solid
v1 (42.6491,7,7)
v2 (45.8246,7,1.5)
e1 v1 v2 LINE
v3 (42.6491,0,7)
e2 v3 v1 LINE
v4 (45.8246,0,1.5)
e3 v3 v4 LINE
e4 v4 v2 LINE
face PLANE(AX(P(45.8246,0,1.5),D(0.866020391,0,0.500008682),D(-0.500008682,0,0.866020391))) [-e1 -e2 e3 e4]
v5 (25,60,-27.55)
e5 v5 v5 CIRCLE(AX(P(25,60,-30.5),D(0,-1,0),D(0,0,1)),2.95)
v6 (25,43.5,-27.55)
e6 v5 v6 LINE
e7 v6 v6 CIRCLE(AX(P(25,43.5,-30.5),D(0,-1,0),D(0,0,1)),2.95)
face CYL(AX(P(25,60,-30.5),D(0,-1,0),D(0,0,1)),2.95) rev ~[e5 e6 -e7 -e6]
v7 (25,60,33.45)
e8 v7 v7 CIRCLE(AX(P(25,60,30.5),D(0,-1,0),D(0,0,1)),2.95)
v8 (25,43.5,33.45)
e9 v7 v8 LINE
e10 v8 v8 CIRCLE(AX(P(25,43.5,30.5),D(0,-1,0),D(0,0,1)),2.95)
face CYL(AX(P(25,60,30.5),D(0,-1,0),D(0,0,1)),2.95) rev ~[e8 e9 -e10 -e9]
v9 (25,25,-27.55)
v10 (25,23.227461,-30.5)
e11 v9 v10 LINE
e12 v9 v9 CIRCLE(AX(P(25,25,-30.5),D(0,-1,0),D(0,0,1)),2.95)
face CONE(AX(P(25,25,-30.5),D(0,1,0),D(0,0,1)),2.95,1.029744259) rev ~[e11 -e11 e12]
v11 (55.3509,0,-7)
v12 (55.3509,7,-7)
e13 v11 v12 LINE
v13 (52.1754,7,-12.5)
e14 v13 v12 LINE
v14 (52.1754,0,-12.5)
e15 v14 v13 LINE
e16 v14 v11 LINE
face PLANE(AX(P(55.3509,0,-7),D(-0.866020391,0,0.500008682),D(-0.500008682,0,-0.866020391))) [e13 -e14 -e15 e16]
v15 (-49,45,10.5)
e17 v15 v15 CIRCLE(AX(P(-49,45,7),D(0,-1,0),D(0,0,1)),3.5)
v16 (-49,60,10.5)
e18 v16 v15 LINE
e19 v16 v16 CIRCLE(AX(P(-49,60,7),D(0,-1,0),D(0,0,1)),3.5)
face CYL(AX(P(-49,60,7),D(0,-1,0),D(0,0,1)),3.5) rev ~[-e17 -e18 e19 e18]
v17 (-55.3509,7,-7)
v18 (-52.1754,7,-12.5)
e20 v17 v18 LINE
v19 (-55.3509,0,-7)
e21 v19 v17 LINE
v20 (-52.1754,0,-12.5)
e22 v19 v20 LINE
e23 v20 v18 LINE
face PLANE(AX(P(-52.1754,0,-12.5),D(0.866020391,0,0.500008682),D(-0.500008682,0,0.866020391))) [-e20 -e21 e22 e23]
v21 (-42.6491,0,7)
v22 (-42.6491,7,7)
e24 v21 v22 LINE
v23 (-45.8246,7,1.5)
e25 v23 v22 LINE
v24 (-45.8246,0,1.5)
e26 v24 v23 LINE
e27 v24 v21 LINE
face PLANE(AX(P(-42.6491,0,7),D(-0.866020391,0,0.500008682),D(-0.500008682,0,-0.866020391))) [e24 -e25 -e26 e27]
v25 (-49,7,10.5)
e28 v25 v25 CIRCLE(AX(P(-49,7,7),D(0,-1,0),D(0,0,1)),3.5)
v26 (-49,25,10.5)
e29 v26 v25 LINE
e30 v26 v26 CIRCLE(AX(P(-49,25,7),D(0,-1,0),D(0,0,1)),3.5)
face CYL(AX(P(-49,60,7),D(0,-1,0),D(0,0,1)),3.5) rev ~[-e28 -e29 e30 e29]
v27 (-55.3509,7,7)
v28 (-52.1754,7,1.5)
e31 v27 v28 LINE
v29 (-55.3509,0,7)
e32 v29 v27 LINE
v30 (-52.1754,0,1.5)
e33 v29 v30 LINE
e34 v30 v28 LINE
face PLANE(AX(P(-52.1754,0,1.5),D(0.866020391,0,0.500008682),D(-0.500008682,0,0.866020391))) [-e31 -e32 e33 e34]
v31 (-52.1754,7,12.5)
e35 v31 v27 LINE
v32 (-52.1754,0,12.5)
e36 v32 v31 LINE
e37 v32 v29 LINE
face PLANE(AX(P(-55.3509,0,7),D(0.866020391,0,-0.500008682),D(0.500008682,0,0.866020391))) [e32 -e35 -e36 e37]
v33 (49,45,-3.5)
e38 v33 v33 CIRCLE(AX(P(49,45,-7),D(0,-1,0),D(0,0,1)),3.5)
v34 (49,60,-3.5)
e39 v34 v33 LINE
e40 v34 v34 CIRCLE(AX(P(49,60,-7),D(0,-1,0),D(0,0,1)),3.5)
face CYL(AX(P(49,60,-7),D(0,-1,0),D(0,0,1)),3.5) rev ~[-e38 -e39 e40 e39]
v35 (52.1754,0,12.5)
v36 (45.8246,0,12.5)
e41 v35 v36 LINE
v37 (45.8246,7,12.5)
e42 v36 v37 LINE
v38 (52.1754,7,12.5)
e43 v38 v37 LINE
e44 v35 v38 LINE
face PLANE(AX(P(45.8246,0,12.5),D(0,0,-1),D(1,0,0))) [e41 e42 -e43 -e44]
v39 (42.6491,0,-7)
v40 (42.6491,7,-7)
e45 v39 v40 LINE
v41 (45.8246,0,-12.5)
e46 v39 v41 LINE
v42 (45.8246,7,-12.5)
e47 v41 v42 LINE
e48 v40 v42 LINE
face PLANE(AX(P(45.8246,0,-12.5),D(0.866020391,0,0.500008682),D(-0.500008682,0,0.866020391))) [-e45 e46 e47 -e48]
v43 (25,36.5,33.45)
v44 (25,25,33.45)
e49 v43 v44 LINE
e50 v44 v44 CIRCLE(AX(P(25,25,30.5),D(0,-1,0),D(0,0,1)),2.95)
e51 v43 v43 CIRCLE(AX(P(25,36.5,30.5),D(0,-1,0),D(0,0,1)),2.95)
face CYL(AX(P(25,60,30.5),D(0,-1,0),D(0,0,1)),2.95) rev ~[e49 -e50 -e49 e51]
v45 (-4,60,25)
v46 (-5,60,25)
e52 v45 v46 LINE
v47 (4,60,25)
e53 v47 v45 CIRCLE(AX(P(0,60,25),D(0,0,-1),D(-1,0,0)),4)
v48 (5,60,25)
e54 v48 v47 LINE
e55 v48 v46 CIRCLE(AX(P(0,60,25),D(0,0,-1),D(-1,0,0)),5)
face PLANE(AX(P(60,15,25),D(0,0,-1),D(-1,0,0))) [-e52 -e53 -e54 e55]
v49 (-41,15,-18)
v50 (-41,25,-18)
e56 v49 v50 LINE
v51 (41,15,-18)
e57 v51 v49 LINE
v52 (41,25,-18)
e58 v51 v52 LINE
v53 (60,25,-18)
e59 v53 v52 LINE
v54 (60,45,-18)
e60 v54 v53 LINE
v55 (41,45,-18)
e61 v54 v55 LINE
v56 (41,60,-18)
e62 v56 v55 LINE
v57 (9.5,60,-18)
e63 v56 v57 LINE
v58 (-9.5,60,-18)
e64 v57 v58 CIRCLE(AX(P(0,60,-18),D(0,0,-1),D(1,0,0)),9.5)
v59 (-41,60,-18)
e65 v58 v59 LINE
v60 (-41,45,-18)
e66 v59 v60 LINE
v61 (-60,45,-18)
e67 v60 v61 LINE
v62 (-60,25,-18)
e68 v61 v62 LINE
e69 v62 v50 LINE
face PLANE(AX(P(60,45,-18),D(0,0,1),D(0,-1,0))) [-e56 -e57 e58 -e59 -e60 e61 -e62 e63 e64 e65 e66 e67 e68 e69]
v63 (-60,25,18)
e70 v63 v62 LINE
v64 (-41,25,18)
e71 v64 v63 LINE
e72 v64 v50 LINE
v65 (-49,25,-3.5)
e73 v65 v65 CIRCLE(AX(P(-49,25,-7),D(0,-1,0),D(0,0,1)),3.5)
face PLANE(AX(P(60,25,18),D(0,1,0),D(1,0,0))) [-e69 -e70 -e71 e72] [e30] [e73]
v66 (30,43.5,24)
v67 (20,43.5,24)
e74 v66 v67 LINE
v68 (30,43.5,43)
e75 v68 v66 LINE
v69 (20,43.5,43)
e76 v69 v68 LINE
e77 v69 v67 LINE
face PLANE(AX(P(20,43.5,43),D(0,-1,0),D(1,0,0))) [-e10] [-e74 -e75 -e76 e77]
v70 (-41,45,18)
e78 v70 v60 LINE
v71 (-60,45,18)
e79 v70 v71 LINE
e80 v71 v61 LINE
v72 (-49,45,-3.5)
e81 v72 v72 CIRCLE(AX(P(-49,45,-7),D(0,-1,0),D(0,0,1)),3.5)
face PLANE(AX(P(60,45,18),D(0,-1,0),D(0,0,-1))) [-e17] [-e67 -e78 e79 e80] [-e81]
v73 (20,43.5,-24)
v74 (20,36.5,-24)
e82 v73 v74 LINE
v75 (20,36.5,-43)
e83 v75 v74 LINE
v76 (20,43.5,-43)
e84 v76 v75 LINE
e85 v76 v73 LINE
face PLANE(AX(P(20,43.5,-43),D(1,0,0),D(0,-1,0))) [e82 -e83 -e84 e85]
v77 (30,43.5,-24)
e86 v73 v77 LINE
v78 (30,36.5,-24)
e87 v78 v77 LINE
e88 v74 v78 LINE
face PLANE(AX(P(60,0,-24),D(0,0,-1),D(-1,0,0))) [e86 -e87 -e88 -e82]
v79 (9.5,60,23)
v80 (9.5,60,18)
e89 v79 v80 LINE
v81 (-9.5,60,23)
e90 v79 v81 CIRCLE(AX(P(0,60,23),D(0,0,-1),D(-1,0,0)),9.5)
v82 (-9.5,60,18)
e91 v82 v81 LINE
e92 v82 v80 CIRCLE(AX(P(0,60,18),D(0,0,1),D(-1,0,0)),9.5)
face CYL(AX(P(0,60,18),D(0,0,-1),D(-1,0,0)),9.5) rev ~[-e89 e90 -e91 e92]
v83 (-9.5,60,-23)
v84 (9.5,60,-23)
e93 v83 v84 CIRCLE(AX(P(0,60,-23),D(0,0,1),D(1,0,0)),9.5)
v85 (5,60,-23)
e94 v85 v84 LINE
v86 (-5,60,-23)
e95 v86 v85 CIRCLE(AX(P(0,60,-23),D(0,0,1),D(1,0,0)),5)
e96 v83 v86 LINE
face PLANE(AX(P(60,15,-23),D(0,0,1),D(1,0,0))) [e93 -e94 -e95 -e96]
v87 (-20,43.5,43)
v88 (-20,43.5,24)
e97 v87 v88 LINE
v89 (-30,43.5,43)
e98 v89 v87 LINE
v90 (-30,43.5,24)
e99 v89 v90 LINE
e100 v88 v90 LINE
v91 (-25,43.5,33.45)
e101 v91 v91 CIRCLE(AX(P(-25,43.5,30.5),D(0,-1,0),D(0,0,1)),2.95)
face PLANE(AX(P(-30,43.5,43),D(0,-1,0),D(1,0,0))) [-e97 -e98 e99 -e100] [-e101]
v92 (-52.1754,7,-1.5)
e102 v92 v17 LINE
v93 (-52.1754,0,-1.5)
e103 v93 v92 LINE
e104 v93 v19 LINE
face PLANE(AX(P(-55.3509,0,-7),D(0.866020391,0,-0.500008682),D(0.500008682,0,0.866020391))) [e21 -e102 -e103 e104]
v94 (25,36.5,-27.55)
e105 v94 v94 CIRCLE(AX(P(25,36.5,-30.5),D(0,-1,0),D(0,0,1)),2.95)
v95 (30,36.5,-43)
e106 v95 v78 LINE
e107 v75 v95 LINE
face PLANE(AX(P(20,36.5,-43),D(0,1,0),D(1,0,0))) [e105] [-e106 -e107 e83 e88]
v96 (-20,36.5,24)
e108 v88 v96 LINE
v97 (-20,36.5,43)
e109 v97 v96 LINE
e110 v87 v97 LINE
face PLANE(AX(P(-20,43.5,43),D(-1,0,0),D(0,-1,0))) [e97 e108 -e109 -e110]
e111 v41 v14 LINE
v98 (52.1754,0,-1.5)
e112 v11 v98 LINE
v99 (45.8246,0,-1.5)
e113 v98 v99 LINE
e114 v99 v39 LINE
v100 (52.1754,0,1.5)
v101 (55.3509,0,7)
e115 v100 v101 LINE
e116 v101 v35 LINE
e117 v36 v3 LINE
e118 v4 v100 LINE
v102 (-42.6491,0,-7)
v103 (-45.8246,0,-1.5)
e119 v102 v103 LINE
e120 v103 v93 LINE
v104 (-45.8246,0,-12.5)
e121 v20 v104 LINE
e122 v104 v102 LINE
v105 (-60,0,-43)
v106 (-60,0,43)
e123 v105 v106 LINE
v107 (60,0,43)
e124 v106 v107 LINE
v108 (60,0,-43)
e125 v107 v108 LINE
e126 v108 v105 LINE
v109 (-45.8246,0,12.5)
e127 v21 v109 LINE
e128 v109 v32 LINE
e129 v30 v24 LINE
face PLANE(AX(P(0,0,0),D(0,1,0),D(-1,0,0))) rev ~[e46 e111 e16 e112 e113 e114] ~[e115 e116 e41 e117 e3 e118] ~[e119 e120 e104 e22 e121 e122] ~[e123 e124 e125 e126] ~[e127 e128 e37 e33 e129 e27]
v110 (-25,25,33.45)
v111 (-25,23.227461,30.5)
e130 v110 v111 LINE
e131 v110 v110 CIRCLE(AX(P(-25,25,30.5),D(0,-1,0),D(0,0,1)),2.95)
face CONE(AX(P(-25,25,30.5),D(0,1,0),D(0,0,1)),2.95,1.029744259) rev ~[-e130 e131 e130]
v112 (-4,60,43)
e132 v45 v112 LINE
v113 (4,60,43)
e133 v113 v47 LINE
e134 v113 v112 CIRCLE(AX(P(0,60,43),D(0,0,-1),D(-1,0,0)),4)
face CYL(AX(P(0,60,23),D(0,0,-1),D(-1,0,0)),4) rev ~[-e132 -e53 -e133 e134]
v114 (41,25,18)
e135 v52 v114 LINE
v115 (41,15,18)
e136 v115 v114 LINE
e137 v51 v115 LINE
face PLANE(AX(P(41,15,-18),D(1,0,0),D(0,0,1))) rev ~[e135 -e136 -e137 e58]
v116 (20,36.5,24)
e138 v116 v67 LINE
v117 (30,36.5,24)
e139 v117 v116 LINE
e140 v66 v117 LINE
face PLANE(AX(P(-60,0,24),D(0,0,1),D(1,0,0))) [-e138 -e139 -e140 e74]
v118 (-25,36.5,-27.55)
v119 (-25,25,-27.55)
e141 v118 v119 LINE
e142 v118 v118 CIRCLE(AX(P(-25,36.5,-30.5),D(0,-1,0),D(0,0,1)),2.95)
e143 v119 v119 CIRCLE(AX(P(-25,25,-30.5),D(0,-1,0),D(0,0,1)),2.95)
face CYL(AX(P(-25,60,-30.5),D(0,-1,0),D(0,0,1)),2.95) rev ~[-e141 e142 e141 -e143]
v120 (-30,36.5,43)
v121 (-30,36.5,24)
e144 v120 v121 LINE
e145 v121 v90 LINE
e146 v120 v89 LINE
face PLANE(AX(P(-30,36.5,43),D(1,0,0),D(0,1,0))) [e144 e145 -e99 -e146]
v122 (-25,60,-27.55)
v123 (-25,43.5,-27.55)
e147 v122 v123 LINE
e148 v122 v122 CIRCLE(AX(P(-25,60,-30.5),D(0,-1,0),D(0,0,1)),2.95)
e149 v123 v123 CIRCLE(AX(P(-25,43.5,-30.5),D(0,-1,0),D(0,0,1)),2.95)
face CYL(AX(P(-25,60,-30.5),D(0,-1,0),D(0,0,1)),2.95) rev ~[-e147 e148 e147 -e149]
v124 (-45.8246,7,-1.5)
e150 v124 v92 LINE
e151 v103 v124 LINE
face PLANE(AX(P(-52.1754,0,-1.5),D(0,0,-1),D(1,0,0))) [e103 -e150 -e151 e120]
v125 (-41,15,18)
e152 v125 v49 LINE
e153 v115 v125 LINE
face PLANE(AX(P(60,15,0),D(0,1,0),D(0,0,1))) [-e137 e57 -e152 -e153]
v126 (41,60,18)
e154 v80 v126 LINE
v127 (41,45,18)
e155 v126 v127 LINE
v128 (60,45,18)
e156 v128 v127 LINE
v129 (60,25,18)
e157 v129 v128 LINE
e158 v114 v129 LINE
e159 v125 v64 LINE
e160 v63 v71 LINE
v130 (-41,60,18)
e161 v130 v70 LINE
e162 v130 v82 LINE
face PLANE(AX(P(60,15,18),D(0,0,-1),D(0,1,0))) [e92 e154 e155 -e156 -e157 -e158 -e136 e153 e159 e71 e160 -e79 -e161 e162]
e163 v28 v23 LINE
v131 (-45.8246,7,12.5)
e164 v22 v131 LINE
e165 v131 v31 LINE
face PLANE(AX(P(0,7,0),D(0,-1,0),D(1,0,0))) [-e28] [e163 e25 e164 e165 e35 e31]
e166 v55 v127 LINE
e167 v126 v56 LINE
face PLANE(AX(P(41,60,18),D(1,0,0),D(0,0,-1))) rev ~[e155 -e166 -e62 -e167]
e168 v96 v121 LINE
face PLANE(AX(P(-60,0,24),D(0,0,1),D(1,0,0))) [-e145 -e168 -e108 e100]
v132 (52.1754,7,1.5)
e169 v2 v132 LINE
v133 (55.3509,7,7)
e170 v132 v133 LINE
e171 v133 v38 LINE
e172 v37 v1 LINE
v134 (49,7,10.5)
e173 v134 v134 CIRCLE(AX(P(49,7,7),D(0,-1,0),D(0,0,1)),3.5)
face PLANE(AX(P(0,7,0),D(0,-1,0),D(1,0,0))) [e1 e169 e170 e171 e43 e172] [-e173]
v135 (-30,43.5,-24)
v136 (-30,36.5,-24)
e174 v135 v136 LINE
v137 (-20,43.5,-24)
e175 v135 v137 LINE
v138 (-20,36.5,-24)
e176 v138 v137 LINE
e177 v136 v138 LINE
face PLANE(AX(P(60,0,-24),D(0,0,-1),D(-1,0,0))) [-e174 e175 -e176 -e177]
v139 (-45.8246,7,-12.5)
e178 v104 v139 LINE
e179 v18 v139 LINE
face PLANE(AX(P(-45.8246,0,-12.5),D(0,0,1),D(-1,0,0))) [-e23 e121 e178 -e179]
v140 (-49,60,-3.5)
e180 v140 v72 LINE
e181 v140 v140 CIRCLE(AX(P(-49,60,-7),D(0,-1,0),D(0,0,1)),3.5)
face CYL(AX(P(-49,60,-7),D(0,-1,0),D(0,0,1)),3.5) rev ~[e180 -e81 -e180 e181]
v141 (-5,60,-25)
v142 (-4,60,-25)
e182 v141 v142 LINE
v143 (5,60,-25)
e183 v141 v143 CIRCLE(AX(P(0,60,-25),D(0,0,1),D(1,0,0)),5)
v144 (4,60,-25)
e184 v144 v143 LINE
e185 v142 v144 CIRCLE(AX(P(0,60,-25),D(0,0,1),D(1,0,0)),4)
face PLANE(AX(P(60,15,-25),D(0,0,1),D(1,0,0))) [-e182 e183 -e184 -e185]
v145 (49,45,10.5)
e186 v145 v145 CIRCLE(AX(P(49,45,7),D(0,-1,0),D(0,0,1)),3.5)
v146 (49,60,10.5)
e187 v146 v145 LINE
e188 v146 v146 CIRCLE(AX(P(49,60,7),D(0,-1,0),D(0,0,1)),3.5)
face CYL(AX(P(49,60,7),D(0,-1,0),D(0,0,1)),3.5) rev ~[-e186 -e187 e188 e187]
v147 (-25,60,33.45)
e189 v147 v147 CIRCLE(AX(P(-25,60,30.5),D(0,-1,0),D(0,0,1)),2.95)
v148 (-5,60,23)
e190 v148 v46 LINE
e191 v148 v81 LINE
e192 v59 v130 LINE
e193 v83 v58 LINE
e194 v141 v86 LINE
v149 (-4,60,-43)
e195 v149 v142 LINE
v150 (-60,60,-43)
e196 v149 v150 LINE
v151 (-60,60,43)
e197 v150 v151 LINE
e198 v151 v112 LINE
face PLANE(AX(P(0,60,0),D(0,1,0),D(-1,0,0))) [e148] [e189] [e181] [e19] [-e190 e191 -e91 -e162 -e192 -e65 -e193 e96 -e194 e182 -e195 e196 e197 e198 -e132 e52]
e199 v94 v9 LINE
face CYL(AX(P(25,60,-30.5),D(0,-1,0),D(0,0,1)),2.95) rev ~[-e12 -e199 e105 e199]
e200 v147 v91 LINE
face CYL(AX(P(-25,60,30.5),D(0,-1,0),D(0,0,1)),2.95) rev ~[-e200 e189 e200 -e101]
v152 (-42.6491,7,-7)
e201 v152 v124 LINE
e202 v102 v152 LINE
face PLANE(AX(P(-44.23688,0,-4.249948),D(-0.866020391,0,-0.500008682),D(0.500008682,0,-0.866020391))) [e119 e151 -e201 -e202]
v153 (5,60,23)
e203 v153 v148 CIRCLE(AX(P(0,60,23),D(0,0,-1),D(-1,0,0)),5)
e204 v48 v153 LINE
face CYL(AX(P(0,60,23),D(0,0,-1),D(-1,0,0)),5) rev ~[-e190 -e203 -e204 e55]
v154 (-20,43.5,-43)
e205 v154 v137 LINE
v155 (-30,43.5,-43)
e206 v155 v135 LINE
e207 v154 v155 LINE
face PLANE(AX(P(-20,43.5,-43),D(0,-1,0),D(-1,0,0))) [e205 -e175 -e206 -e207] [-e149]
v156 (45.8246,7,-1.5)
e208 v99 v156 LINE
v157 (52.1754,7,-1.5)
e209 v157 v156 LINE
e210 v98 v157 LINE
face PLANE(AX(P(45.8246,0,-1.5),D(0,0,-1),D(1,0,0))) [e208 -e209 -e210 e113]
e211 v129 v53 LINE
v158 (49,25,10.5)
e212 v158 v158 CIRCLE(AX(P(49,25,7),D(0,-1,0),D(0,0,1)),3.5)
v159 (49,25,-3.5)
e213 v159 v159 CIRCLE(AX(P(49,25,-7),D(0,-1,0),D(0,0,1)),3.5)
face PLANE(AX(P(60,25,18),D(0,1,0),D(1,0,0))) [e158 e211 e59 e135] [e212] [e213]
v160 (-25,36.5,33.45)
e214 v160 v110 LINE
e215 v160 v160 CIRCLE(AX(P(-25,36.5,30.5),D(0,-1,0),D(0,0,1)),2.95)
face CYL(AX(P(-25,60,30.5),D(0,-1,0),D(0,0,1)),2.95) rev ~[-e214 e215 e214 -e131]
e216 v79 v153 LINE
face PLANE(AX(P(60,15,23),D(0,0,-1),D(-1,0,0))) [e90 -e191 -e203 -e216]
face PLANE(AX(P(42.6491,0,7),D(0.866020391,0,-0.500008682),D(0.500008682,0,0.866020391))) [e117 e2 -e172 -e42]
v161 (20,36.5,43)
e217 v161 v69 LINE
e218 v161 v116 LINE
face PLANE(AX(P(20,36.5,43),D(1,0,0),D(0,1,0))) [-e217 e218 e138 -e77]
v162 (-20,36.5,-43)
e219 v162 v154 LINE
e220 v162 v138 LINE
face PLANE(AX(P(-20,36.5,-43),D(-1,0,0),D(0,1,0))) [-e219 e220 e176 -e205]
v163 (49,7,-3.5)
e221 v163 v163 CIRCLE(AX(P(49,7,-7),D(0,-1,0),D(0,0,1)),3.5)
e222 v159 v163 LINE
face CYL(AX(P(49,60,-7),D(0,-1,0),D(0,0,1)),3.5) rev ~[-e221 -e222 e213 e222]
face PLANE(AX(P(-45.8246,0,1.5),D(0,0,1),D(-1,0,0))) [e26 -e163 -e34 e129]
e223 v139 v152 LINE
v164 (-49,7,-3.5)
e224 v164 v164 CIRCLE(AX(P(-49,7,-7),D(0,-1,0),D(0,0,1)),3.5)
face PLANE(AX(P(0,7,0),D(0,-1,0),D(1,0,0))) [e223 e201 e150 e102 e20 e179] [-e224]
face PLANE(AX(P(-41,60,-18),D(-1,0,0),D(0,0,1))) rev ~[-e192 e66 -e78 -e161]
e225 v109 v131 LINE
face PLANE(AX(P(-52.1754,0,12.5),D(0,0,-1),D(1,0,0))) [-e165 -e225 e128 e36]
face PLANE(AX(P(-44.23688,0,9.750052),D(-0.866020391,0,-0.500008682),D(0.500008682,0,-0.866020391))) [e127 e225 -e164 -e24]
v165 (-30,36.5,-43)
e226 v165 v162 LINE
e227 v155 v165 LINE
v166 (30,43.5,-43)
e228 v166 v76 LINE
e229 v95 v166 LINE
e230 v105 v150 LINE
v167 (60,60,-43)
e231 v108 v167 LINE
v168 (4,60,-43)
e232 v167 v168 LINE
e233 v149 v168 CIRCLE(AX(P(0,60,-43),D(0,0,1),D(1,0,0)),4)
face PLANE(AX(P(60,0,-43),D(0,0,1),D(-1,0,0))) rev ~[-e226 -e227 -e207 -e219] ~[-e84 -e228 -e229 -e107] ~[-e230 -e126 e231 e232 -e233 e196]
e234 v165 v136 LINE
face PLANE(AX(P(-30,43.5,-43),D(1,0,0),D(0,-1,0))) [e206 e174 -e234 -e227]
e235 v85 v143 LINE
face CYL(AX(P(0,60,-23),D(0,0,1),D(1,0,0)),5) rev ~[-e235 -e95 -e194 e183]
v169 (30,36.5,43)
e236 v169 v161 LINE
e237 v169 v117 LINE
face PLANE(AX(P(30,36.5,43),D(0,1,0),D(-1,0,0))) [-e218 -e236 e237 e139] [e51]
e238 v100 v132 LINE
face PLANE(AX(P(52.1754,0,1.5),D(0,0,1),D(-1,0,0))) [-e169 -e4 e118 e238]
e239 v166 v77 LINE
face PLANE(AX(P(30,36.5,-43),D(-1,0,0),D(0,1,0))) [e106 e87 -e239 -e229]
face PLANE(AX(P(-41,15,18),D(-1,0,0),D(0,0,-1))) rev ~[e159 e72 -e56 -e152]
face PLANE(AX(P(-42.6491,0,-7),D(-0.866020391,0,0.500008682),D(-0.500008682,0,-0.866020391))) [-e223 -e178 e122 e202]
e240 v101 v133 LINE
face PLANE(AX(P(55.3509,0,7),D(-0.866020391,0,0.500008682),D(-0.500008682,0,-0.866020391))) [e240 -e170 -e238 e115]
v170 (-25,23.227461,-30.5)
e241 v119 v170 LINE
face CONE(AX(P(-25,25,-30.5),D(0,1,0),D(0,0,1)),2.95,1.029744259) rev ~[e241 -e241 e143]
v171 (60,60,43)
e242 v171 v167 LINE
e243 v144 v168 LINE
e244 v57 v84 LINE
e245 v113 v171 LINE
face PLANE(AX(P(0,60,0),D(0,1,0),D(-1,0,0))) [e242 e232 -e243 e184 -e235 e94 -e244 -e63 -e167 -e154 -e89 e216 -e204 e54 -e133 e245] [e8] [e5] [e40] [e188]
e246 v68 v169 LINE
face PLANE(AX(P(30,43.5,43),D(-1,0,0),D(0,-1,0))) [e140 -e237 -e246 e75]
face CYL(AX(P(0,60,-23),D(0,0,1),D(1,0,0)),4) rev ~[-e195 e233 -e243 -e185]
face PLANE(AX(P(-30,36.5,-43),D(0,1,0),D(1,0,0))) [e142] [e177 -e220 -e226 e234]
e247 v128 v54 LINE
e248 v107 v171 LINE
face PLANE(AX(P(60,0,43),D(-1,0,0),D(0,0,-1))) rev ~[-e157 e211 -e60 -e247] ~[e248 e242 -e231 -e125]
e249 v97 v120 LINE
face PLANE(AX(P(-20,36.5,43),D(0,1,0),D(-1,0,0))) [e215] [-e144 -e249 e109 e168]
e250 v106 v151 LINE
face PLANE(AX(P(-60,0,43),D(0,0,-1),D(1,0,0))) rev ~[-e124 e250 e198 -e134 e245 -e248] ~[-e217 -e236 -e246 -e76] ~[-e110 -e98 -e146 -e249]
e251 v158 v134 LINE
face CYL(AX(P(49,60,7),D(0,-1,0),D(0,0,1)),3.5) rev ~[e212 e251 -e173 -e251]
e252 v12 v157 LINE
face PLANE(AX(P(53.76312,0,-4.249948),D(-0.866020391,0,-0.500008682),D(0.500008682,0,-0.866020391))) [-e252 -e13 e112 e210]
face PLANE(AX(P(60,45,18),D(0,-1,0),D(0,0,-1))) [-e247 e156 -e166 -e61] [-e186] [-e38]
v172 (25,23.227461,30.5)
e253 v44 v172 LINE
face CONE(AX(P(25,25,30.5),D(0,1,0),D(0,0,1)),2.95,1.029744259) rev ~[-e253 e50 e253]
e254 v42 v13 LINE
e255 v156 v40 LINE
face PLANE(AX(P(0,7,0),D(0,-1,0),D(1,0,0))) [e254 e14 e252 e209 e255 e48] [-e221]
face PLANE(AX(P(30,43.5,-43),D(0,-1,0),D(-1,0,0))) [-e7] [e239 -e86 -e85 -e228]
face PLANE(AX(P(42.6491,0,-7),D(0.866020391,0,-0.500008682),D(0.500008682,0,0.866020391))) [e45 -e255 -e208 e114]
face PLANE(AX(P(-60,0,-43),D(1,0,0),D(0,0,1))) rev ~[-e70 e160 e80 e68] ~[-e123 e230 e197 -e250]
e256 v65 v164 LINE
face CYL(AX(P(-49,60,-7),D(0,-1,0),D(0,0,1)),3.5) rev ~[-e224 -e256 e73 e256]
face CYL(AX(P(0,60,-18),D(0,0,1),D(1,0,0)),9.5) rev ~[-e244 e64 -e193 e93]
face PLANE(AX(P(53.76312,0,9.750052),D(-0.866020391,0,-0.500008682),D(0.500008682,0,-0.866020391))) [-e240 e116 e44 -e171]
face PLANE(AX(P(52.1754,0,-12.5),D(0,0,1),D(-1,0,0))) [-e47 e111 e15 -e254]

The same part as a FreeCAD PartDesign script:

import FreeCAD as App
import Part
import Sketcher
Q = App.Units.Quantity

doc = App.newDocument("Part")
params = doc.addObject("Spreadsheet::Sheet", "Params")
for row, (alias, value) in enumerate([
    ("sketch1_width", "120 mm"),
    ("sketch1_height", "86 mm"),
    ("pad1_length", "60 mm"),
    ("sketch2_width", "30 mm"),
    ("sketch2_height", "36 mm"),
    ("pocket1_length", "120 mm"),
    ("sketch3_diameter", "19 mm"),
    ("pocket2_length", "5 mm"),
    ("sketch4_diameter", "8 mm"),
    ("pocket3_length", "20 mm"),
    ("sketch5_diameter", "19 mm"),
    ("pocket4_length", "5 mm"),
    ("sketch6_diameter", "8 mm"),
    ("pocket5_length", "20 mm"),
    ("sketch7_diameter", "5.9 mm"),
    ("hole_diameter", "5.9 mm"),
    ("hole_depth", "35 mm"),
    ("sketch8_width", "10 mm"),
    ("sketch8_height", "7 mm"),
    ("pocket6_length", "19 mm"),
    ("sketch9_width", "10 mm"),
    ("sketch9_height", "7 mm"),
    ("pocket7_length", "19 mm"),
    ("sketch10_width", "82 mm"),
    ("sketch10_height", "36 mm"),
    ("pocket8_length", "20 mm"),
    ("sketch11_diameter", "10 mm"),
    ("pocket9_length", "2 mm"),
    ("sketch12_diameter", "10 mm"),
    ("pocket10_length", "2 mm"),
    ("sketch13_width", "19 mm"),
    ("sketch13_height", "36 mm"),
    ("pad2_length", "10 mm"),
    ("sketch14_diameter", "7 mm"),
    ("hole2_diameter", "7 mm"),
    ("hole2_depth", "60 mm"),
    ("pocket11_length", "7 mm"),
], start=1):
    params.set(f"A{row}", alias)
    params.set(f"B{row}", "=" + value)
    params.setAlias(f"B{row}", alias)

body = doc.addObject("PartDesign::Body", "Body")

sketch1 = body.newObject("Sketcher::SketchObject", "Sketch")
sketch1.AttachmentSupport = (doc.getObject("XZ_Plane"), [""])
sketch1.MapMode = "FlatFace"
sketch1.addGeometry([
    Part.LineSegment(App.Vector(-60, -43, 0), App.Vector(-60, 43, 0)),
    Part.LineSegment(App.Vector(-60, 43, 0), App.Vector(60, 43, 0)),
    Part.LineSegment(App.Vector(60, 43, 0), App.Vector(60, -43, 0)),
    Part.LineSegment(App.Vector(60, -43, 0), App.Vector(-60, -43, 0)),
], False)
sketch1.addConstraint([
    Sketcher.Constraint("Coincident", 0, 2, 1, 1),
    Sketcher.Constraint("Coincident", 1, 2, 2, 1),
    Sketcher.Constraint("Coincident", 2, 2, 3, 1),
    Sketcher.Constraint("Coincident", 3, 2, 0, 1),
    Sketcher.Constraint("Vertical", 0),
    Sketcher.Constraint("Horizontal", 1),
    Sketcher.Constraint("Vertical", 2),
    Sketcher.Constraint("Horizontal", 3),
    Sketcher.Constraint("Symmetric", 0, 2, 2, 2, -1, 1),
    Sketcher.Constraint("DistanceX", 1, 1, 1, 2, Q("120 mm")),
    Sketcher.Constraint("DistanceY", 0, 1, 0, 2, Q("86 mm")),
])
sketch1.setExpression("Constraints[9]", "Params.sketch1_width")
sketch1.setExpression("Constraints[10]", "Params.sketch1_height")
pad1 = body.newObject("PartDesign::Pad", "Pad")
pad1.Profile = sketch1
pad1.setExpression("Length", "Params.pad1_length")
pad1.Reversed = True

sketch2 = body.newObject("Sketcher::SketchObject", "Sketch001")
sketch2.AttachmentSupport = (doc.getObject("YZ_Plane"), [""])
sketch2.MapMode = "FlatFace"
sketch2.AttachmentOffset = App.Placement(App.Vector(0, 0, 60), App.Rotation())
sketch2.addGeometry([
    Part.LineSegment(App.Vector(45, -18, 0), App.Vector(45, 18, 0)),
    Part.LineSegment(App.Vector(45, 18, 0), App.Vector(15, 18, 0)),
    Part.LineSegment(App.Vector(15, 18, 0), App.Vector(15, -18, 0)),
    Part.LineSegment(App.Vector(15, -18, 0), App.Vector(45, -18, 0)),
], False)
sketch2.addConstraint([
    Sketcher.Constraint("Coincident", 0, 2, 1, 1),
    Sketcher.Constraint("Coincident", 1, 2, 2, 1),
    Sketcher.Constraint("Coincident", 2, 2, 3, 1),
    Sketcher.Constraint("Coincident", 3, 2, 0, 1),
    Sketcher.Constraint("Vertical", 0),
    Sketcher.Constraint("Horizontal", 1),
    Sketcher.Constraint("Vertical", 2),
    Sketcher.Constraint("Horizontal", 3),
    Sketcher.Constraint("DistanceX", 1, 2, 1, 1, Q("30 mm")),
    Sketcher.Constraint("DistanceY", 0, 1, 0, 2, Q("36 mm")),
    Sketcher.Constraint("DistanceX", -1, 1, 1, 2, Q("15 mm")),
    Sketcher.Constraint("DistanceY", -1, 1, 0, 2, Q("18 mm")),
])
sketch2.setExpression("Constraints[8]", "Params.sketch2_width")
sketch2.setExpression("Constraints[9]", "Params.sketch2_height")
pocket1 = body.newObject("PartDesign::Pocket", "Pocket")
pocket1.Profile = sketch2
pocket1.setExpression("Length", "Params.pocket1_length")

sketch3 = body.newObject("Sketcher::SketchObject", "Sketch002")
sketch3.AttachmentSupport = (doc.getObject("XY_Plane"), [""])
sketch3.MapMode = "FlatFace"
sketch3.AttachmentOffset = App.Placement(App.Vector(0, 0, -18), App.Rotation())
sketch3.addGeometry(Part.Circle(App.Vector(0, 60, 0), App.Vector(0, 0, 1), 10), False)
sketch3.addConstraint([
    Sketcher.Constraint("PointOnObject", 0, 3, -2),
    Sketcher.Constraint("Diameter", 0, Q("19 mm")),
    Sketcher.Constraint("DistanceY", -1, 1, 0, 3, Q("60 mm")),
])
sketch3.setExpression("Constraints[1]", "Params.sketch3_diameter")
pocket2 = body.newObject("PartDesign::Pocket", "Pocket001")
pocket2.Profile = sketch3
pocket2.setExpression("Length", "Params.pocket2_length")

sketch4 = body.newObject("Sketcher::SketchObject", "Sketch003")
sketch4.AttachmentSupport = (doc.getObject("XY_Plane"), [""])
sketch4.MapMode = "FlatFace"
sketch4.AttachmentOffset = App.Placement(App.Vector(0, 0, -23), App.Rotation())
sketch4.addGeometry(Part.Circle(App.Vector(0, 60, 0), App.Vector(0, 0, 1), 4), False)
sketch4.addConstraint([
    Sketcher.Constraint("PointOnObject", 0, 3, -2),
    Sketcher.Constraint("Diameter", 0, Q("8 mm")),
    Sketcher.Constraint("DistanceY", -1, 1, 0, 3, Q("60 mm")),
])
sketch4.setExpression("Constraints[1]", "Params.sketch4_diameter")
pocket3 = body.newObject("PartDesign::Pocket", "Pocket002")
pocket3.Profile = sketch4
pocket3.setExpression("Length", "Params.pocket3_length")

sketch5 = body.newObject("Sketcher::SketchObject", "Sketch004")
sketch5.AttachmentSupport = (doc.getObject("XY_Plane"), [""])
sketch5.MapMode = "FlatFace"
sketch5.AttachmentOffset = App.Placement(App.Vector(0, 0, 18), App.Rotation())
sketch5.addGeometry(Part.Circle(App.Vector(0, 60, 0), App.Vector(0, 0, 1), 10), False)
sketch5.addConstraint([
    Sketcher.Constraint("PointOnObject", 0, 3, -2),
    Sketcher.Constraint("Diameter", 0, Q("19 mm")),
    Sketcher.Constraint("DistanceY", -1, 1, 0, 3, Q("60 mm")),
])
sketch5.setExpression("Constraints[1]", "Params.sketch5_diameter")
pocket4 = body.newObject("PartDesign::Pocket", "Pocket003")
pocket4.Profile = sketch5
pocket4.setExpression("Length", "Params.pocket4_length")
pocket4.Reversed = True

sketch6 = body.newObject("Sketcher::SketchObject", "Sketch005")
sketch6.AttachmentSupport = (doc.getObject("XY_Plane"), [""])
sketch6.MapMode = "FlatFace"
sketch6.AttachmentOffset = App.Placement(App.Vector(0, 0, 23), App.Rotation())
sketch6.addGeometry(Part.Circle(App.Vector(0, 60, 0), App.Vector(0, 0, 1), 4), False)
sketch6.addConstraint([
    Sketcher.Constraint("PointOnObject", 0, 3, -2),
    Sketcher.Constraint("Diameter", 0, Q("8 mm")),
    Sketcher.Constraint("DistanceY", -1, 1, 0, 3, Q("60 mm")),
])
sketch6.setExpression("Constraints[1]", "Params.sketch6_diameter")
pocket5 = body.newObject("PartDesign::Pocket", "Pocket004")
pocket5.Profile = sketch6
pocket5.setExpression("Length", "Params.pocket5_length")
pocket5.Reversed = True

sketch7 = body.newObject("Sketcher::SketchObject", "Sketch006")
sketch7.AttachmentSupport = (doc.getObject("XZ_Plane"), [""])
sketch7.MapMode = "FlatFace"
sketch7.AttachmentOffset = App.Placement(App.Vector(0, 0, -60), App.Rotation())
sketch7.addGeometry([
    Part.Circle(App.Vector(-25, -30.5, 0), App.Vector(0, 0, 1), 3),
    Part.Circle(App.Vector(-25, 30.5, 0), App.Vector(0, 0, 1), 3),
    Part.Circle(App.Vector(25, 30.5, 0), App.Vector(0, 0, 1), 3),
    Part.Circle(App.Vector(25, -30.5, 0), App.Vector(0, 0, 1), 3),
], False)
sketch7.addConstraint([
    Sketcher.Constraint("Equal", 0, 1),
    Sketcher.Constraint("Equal", 1, 2),
    Sketcher.Constraint("Equal", 2, 3),
    Sketcher.Constraint("Symmetric", 0, 3, 2, 3, -1, 1),
    Sketcher.Constraint("Symmetric", 1, 3, 3, 3, -1, 1),
    Sketcher.Constraint("Symmetric", 1, 3, 2, 3, -2),
    Sketcher.Constraint("Diameter", 0, Q("5.9 mm")),
    Sketcher.Constraint("DistanceX", 0, 3, -1, 1, Q("25 mm")),
    Sketcher.Constraint("DistanceY", 0, 3, 1, 3, Q("61 mm")),
])
sketch7.setExpression("Constraints[6]", "Params.sketch7_diameter")
doc.recompute()
hole = body.newObject("PartDesign::Hole", "Hole")
hole.Profile = sketch7
hole.ThreadType = "None"
hole.setExpression("Diameter", "Params.hole_diameter")
hole.DepthType = "Dimension"
hole.setExpression("Depth", "Params.hole_depth")
hole.DrillPoint = "Angled"
hole.DrillPointAngle = 118
hole.Reversed = True

sketch8 = body.newObject("Sketcher::SketchObject", "Sketch007")
sketch8.AttachmentSupport = (doc.getObject("XY_Plane"), [""])
sketch8.MapMode = "FlatFace"
sketch8.AttachmentOffset = App.Placement(App.Vector(0, 0, 43), App.Rotation())
sketch8.addGeometry([
    Part.LineSegment(App.Vector(-20, 44, 0), App.Vector(-30, 44, 0)),
    Part.LineSegment(App.Vector(-30, 44, 0), App.Vector(-30, 36, 0)),
    Part.LineSegment(App.Vector(-30, 36, 0), App.Vector(-20, 36, 0)),
    Part.LineSegment(App.Vector(-20, 36, 0), App.Vector(-20, 44, 0)),
    Part.LineSegment(App.Vector(30, 44, 0), App.Vector(20, 44, 0)),
    Part.LineSegment(App.Vector(20, 44, 0), App.Vector(20, 36, 0)),
    Part.LineSegment(App.Vector(20, 36, 0), App.Vector(30, 36, 0)),
    Part.LineSegment(App.Vector(30, 36, 0), App.Vector(30, 44, 0)),
], False)
sketch8.addConstraint([
    Sketcher.Constraint("Coincident", 0, 2, 1, 1),
    Sketcher.Constraint("Coincident", 1, 2, 2, 1),
    Sketcher.Constraint("Coincident", 2, 2, 3, 1),
    Sketcher.Constraint("Coincident", 3, 2, 0, 1),
    Sketcher.Constraint("Coincident", 4, 2, 5, 1),
    Sketcher.Constraint("Coincident", 5, 2, 6, 1),
    Sketcher.Constraint("Coincident", 6, 2, 7, 1),
    Sketcher.Constraint("Coincident", 7, 2, 4, 1),
    Sketcher.Constraint("Horizontal", 0),
    Sketcher.Constraint("Vertical", 1),
    Sketcher.Constraint("Horizontal", 2),
    Sketcher.Constraint("Vertical", 3),
    Sketcher.Constraint("Horizontal", 4),
    Sketcher.Constraint("Vertical", 5),
    Sketcher.Constraint("Horizontal", 6),
    Sketcher.Constraint("Vertical", 7),
    Sketcher.Constraint("Symmetric", 3, 2, 4, 2, -2),
    Sketcher.Constraint("Symmetric", 1, 2, 6, 2, -2),
    Sketcher.Constraint("DistanceX", 0, 2, 0, 1, Q("10 mm")),
    Sketcher.Constraint("DistanceY", 1, 2, 1, 1, Q("7 mm")),
    Sketcher.Constraint("DistanceX", 2, 2, -1, 1, Q("20 mm")),
    Sketcher.Constraint("DistanceY", -1, 1, 0, 2, Q("43.5 mm")),
])
sketch8.setExpression("Constraints[18]", "Params.sketch8_width")
sketch8.setExpression("Constraints[19]", "Params.sketch8_height")
pocket6 = body.newObject("PartDesign::Pocket", "Pocket005")
pocket6.Profile = sketch8
pocket6.setExpression("Length", "Params.pocket6_length")

sketch9 = body.newObject("Sketcher::SketchObject", "Sketch008")
sketch9.AttachmentSupport = (doc.getObject("XY_Plane"), [""])
sketch9.MapMode = "FlatFace"
sketch9.AttachmentOffset = App.Placement(App.Vector(0, 0, -43), App.Rotation())
sketch9.addGeometry([
    Part.LineSegment(App.Vector(20, 44, 0), App.Vector(30, 44, 0)),
    Part.LineSegment(App.Vector(30, 44, 0), App.Vector(30, 36, 0)),
    Part.LineSegment(App.Vector(30, 36, 0), App.Vector(20, 36, 0)),
    Part.LineSegment(App.Vector(20, 36, 0), App.Vector(20, 44, 0)),
    Part.LineSegment(App.Vector(-30, 44, 0), App.Vector(-20, 44, 0)),
    Part.LineSegment(App.Vector(-20, 44, 0), App.Vector(-20, 36, 0)),
    Part.LineSegment(App.Vector(-20, 36, 0), App.Vector(-30, 36, 0)),
    Part.LineSegment(App.Vector(-30, 36, 0), App.Vector(-30, 44, 0)),
], False)
sketch9.addConstraint([
    Sketcher.Constraint("Coincident", 0, 2, 1, 1),
    Sketcher.Constraint("Coincident", 1, 2, 2, 1),
    Sketcher.Constraint("Coincident", 2, 2, 3, 1),
    Sketcher.Constraint("Coincident", 3, 2, 0, 1),
    Sketcher.Constraint("Coincident", 4, 2, 5, 1),
    Sketcher.Constraint("Coincident", 5, 2, 6, 1),
    Sketcher.Constraint("Coincident", 6, 2, 7, 1),
    Sketcher.Constraint("Coincident", 7, 2, 4, 1),
    Sketcher.Constraint("Horizontal", 0),
    Sketcher.Constraint("Vertical", 1),
    Sketcher.Constraint("Horizontal", 2),
    Sketcher.Constraint("Vertical", 3),
    Sketcher.Constraint("Horizontal", 4),
    Sketcher.Constraint("Vertical", 5),
    Sketcher.Constraint("Horizontal", 6),
    Sketcher.Constraint("Vertical", 7),
    Sketcher.Constraint("Symmetric", 3, 2, 4, 2, -2),
    Sketcher.Constraint("Symmetric", 1, 2, 6, 2, -2),
    Sketcher.Constraint("DistanceX", 0, 1, 0, 2, Q("10 mm")),
    Sketcher.Constraint("DistanceY", 1, 2, 1, 1, Q("7 mm")),
    Sketcher.Constraint("DistanceX", -1, 1, 2, 2, Q("20 mm")),
    Sketcher.Constraint("DistanceY", -1, 1, 0, 2, Q("43.5 mm")),
])
sketch9.setExpression("Constraints[18]", "Params.sketch9_width")
sketch9.setExpression("Constraints[19]", "Params.sketch9_height")
pocket7 = body.newObject("PartDesign::Pocket", "Pocket006")
pocket7.Profile = sketch9
pocket7.setExpression("Length", "Params.pocket7_length")
pocket7.Reversed = True

sketch10 = body.newObject("Sketcher::SketchObject", "Sketch009")
sketch10.AttachmentSupport = (doc.getObject("XZ_Plane"), [""])
sketch10.MapMode = "FlatFace"
sketch10.AttachmentOffset = App.Placement(App.Vector(0, 0, -60), App.Rotation())
sketch10.addGeometry([
    Part.LineSegment(App.Vector(-41, -18, 0), App.Vector(-41, 18, 0)),
    Part.LineSegment(App.Vector(-41, 18, 0), App.Vector(41, 18, 0)),
    Part.LineSegment(App.Vector(41, 18, 0), App.Vector(41, -18, 0)),
    Part.LineSegment(App.Vector(41, -18, 0), App.Vector(-41, -18, 0)),
], False)
sketch10.addConstraint([
    Sketcher.Constraint("Coincident", 0, 2, 1, 1),
    Sketcher.Constraint("Coincident", 1, 2, 2, 1),
    Sketcher.Constraint("Coincident", 2, 2, 3, 1),
    Sketcher.Constraint("Coincident", 3, 2, 0, 1),
    Sketcher.Constraint("Vertical", 0),
    Sketcher.Constraint("Horizontal", 1),
    Sketcher.Constraint("Vertical", 2),
    Sketcher.Constraint("Horizontal", 3),
    Sketcher.Constraint("Symmetric", 0, 2, 2, 2, -1, 1),
    Sketcher.Constraint("DistanceX", 1, 1, 1, 2, Q("82 mm")),
    Sketcher.Constraint("DistanceY", 0, 1, 0, 2, Q("36 mm")),
])
sketch10.setExpression("Constraints[9]", "Params.sketch10_width")
sketch10.setExpression("Constraints[10]", "Params.sketch10_height")
pocket8 = body.newObject("PartDesign::Pocket", "Pocket007")
pocket8.Profile = sketch10
pocket8.setExpression("Length", "Params.pocket8_length")
pocket8.Reversed = True

sketch11 = body.newObject("Sketcher::SketchObject", "Sketch010")
sketch11.AttachmentSupport = (doc.getObject("XY_Plane"), [""])
sketch11.MapMode = "FlatFace"
sketch11.AttachmentOffset = App.Placement(App.Vector(0, 0, -23), App.Rotation())
sketch11.addGeometry(Part.Circle(App.Vector(0, 60, 0), App.Vector(0, 0, 1), 5), False)
sketch11.addConstraint([
    Sketcher.Constraint("PointOnObject", 0, 3, -2),
    Sketcher.Constraint("Diameter", 0, Q("10 mm")),
    Sketcher.Constraint("DistanceY", -1, 1, 0, 3, Q("60 mm")),
])
sketch11.setExpression("Constraints[1]", "Params.sketch11_diameter")
pocket9 = body.newObject("PartDesign::Pocket", "Pocket008")
pocket9.Profile = sketch11
pocket9.setExpression("Length", "Params.pocket9_length")

sketch12 = body.newObject("Sketcher::SketchObject", "Sketch011")
sketch12.AttachmentSupport = (doc.getObject("XY_Plane"), [""])
sketch12.MapMode = "FlatFace"
sketch12.AttachmentOffset = App.Placement(App.Vector(0, 0, 23), App.Rotation())
sketch12.addGeometry(Part.Circle(App.Vector(0, 60, 0), App.Vector(0, 0, 1), 5), False)
sketch12.addConstraint([
    Sketcher.Constraint("PointOnObject", 0, 3, -2),
    Sketcher.Constraint("Diameter", 0, Q("10 mm")),
    Sketcher.Constraint("DistanceY", -1, 1, 0, 3, Q("60 mm")),
])
sketch12.setExpression("Constraints[1]", "Params.sketch12_diameter")
pocket10 = body.newObject("PartDesign::Pocket", "Pocket009")
pocket10.Profile = sketch12
pocket10.setExpression("Length", "Params.pocket10_length")
pocket10.Reversed = True

sketch13 = body.newObject("Sketcher::SketchObject", "Sketch012")
sketch13.AttachmentSupport = (doc.getObject("XZ_Plane"), [""])
sketch13.MapMode = "FlatFace"
sketch13.AttachmentOffset = App.Placement(App.Vector(0, 0, -15), App.Rotation())
sketch13.addGeometry([
    Part.LineSegment(App.Vector(60, -18, 0), App.Vector(41, -18, 0)),
    Part.LineSegment(App.Vector(41, -18, 0), App.Vector(41, 18, 0)),
    Part.LineSegment(App.Vector(41, 18, 0), App.Vector(60, 18, 0)),
    Part.LineSegment(App.Vector(60, 18, 0), App.Vector(60, -18, 0)),
    Part.LineSegment(App.Vector(-60, 18, 0), App.Vector(-41, 18, 0)),
    Part.LineSegment(App.Vector(-41, 18, 0), App.Vector(-41, -18, 0)),
    Part.LineSegment(App.Vector(-41, -18, 0), App.Vector(-60, -18, 0)),
    Part.LineSegment(App.Vector(-60, -18, 0), App.Vector(-60, 18, 0)),
], False)
sketch13.addConstraint([
    Sketcher.Constraint("Coincident", 0, 2, 1, 1),
    Sketcher.Constraint("Coincident", 1, 2, 2, 1),
    Sketcher.Constraint("Coincident", 2, 2, 3, 1),
    Sketcher.Constraint("Coincident", 3, 2, 0, 1),
    Sketcher.Constraint("Coincident", 4, 2, 5, 1),
    Sketcher.Constraint("Coincident", 5, 2, 6, 1),
    Sketcher.Constraint("Coincident", 6, 2, 7, 1),
    Sketcher.Constraint("Coincident", 7, 2, 4, 1),
    Sketcher.Constraint("Horizontal", 0),
    Sketcher.Constraint("Vertical", 1),
    Sketcher.Constraint("Horizontal", 2),
    Sketcher.Constraint("Vertical", 3),
    Sketcher.Constraint("Horizontal", 4),
    Sketcher.Constraint("Vertical", 5),
    Sketcher.Constraint("Horizontal", 6),
    Sketcher.Constraint("Vertical", 7),
    Sketcher.Constraint("Symmetric", 0, 2, 4, 2, -1, 1),
    Sketcher.Constraint("Symmetric", 2, 2, 6, 2, -1, 1),
    Sketcher.Constraint("Horizontal", 2, 2, 4, 2),
    Sketcher.Constraint("DistanceX", 0, 2, 0, 1, Q("19 mm")),
    Sketcher.Constraint("DistanceY", 1, 1, 1, 2, Q("36 mm")),
    Sketcher.Constraint("DistanceX", -1, 1, 0, 2, Q("41 mm")),
])
sketch13.setExpression("Constraints[19]", "Params.sketch13_width")
sketch13.setExpression("Constraints[20]", "Params.sketch13_height")
pad2 = body.newObject("PartDesign::Pad", "Pad001")
pad2.Profile = sketch13
pad2.setExpression("Length", "Params.pad2_length")
pad2.Reversed = True

sketch14 = body.newObject("Sketcher::SketchObject", "Sketch013")
sketch14.AttachmentSupport = (doc.getObject("XZ_Plane"), [""])
sketch14.MapMode = "FlatFace"
sketch14.AttachmentOffset = App.Placement(App.Vector(0, 0, -60), App.Rotation())
sketch14.addGeometry([
    Part.Circle(App.Vector(49, 7, 0), App.Vector(0, 0, 1), 3.5),
    Part.Circle(App.Vector(49, -7, 0), App.Vector(0, 0, 1), 3.5),
    Part.Circle(App.Vector(-49, 7, 0), App.Vector(0, 0, 1), 3.5),
    Part.Circle(App.Vector(-49, -7, 0), App.Vector(0, 0, 1), 3.5),
], False)
sketch14.addConstraint([
    Sketcher.Constraint("Equal", 0, 1),
    Sketcher.Constraint("Equal", 1, 2),
    Sketcher.Constraint("Equal", 2, 3),
    Sketcher.Constraint("Symmetric", 1, 3, 2, 3, -1, 1),
    Sketcher.Constraint("Symmetric", 0, 3, 3, 3, -1, 1),
    Sketcher.Constraint("Symmetric", 0, 3, 2, 3, -2),
    Sketcher.Constraint("Diameter", 0, Q("7 mm")),
    Sketcher.Constraint("DistanceX", -1, 1, 0, 3, Q("49 mm")),
    Sketcher.Constraint("DistanceY", -1, 1, 0, 3, Q("7 mm")),
])
sketch14.setExpression("Constraints[6]", "Params.sketch14_diameter")
doc.recompute()
hole2 = body.newObject("PartDesign::Hole", "Hole001")
hole2.Profile = sketch14
hole2.ThreadType = "None"
hole2.setExpression("Diameter", "Params.hole2_diameter")
hole2.DepthType = "Dimension"
hole2.setExpression("Depth", "Params.hole2_depth")
hole2.DrillPoint = "Flat"
hole2.Reversed = True

sketch15 = body.newObject("Sketcher::SketchObject", "Sketch014")
sketch15.AttachmentSupport = (doc.getObject("XZ_Plane"), [""])
sketch15.MapMode = "FlatFace"
sketch15.addGeometry([
    Part.LineSegment(App.Vector(-43, -7, 0), App.Vector(-46, -2, 0)),
    Part.LineSegment(App.Vector(-46, -2, 0), App.Vector(-52, -2, 0)),
    Part.LineSegment(App.Vector(-52, -2, 0), App.Vector(-55, -7, 0)),
    Part.LineSegment(App.Vector(-55, -7, 0), App.Vector(-52, -12, 0)),
    Part.LineSegment(App.Vector(-52, -12, 0), App.Vector(-46, -12, 0)),
    Part.LineSegment(App.Vector(-46, -12, 0), App.Vector(-43, -7, 0)),
    Part.LineSegment(App.Vector(-43, 7, 0), App.Vector(-46, 12, 0)),
    Part.LineSegment(App.Vector(-46, 12, 0), App.Vector(-52, 12, 0)),
    Part.LineSegment(App.Vector(-52, 12, 0), App.Vector(-55, 7, 0)),
    Part.LineSegment(App.Vector(-55, 7, 0), App.Vector(-52, 2, 0)),
    Part.LineSegment(App.Vector(-52, 2, 0), App.Vector(-46, 2, 0)),
    Part.LineSegment(App.Vector(-46, 2, 0), App.Vector(-43, 7, 0)),
    Part.LineSegment(App.Vector(55, -7, 0), App.Vector(52, -2, 0)),
    Part.LineSegment(App.Vector(52, -2, 0), App.Vector(46, -2, 0)),
    Part.LineSegment(App.Vector(46, -2, 0), App.Vector(43, -7, 0)),
    Part.LineSegment(App.Vector(43, -7, 0), App.Vector(46, -12, 0)),
    Part.LineSegment(App.Vector(46, -12, 0), App.Vector(52, -12, 0)),
    Part.LineSegment(App.Vector(52, -12, 0), App.Vector(55, -7, 0)),
    Part.LineSegment(App.Vector(55, 7, 0), App.Vector(52, 12, 0)),
    Part.LineSegment(App.Vector(52, 12, 0), App.Vector(46, 12, 0)),
    Part.LineSegment(App.Vector(46, 12, 0), App.Vector(43, 7, 0)),
    Part.LineSegment(App.Vector(43, 7, 0), App.Vector(46, 2, 0)),
    Part.LineSegment(App.Vector(46, 2, 0), App.Vector(52, 2, 0)),
    Part.LineSegment(App.Vector(52, 2, 0), App.Vector(55, 7, 0)),
], False)
sketch15.addConstraint([
    Sketcher.Constraint("Coincident", 0, 2, 1, 1),
    Sketcher.Constraint("Coincident", 1, 2, 2, 1),
    Sketcher.Constraint("Coincident", 2, 2, 3, 1),
    Sketcher.Constraint("Coincident", 3, 2, 4, 1),
    Sketcher.Constraint("Coincident", 4, 2, 5, 1),
    Sketcher.Constraint("Coincident", 5, 2, 0, 1),
    Sketcher.Constraint("Coincident", 6, 2, 7, 1),
    Sketcher.Constraint("Coincident", 7, 2, 8, 1),
    Sketcher.Constraint("Coincident", 8, 2, 9, 1),
    Sketcher.Constraint("Coincident", 9, 2, 10, 1),
    Sketcher.Constraint("Coincident", 10, 2, 11, 1),
    Sketcher.Constraint("Coincident", 11, 2, 6, 1),
    Sketcher.Constraint("Coincident", 12, 2, 13, 1),
    Sketcher.Constraint("Coincident", 13, 2, 14, 1),
    Sketcher.Constraint("Coincident", 14, 2, 15, 1),
    Sketcher.Constraint("Coincident", 15, 2, 16, 1),
    Sketcher.Constraint("Coincident", 16, 2, 17, 1),
    Sketcher.Constraint("Coincident", 17, 2, 12, 1),
    Sketcher.Constraint("Coincident", 18, 2, 19, 1),
    Sketcher.Constraint("Coincident", 19, 2, 20, 1),
    Sketcher.Constraint("Coincident", 20, 2, 21, 1),
    Sketcher.Constraint("Coincident", 21, 2, 22, 1),
    Sketcher.Constraint("Coincident", 22, 2, 23, 1),
    Sketcher.Constraint("Coincident", 23, 2, 18, 1),
    Sketcher.Constraint("Horizontal", 1),
    Sketcher.Constraint("Horizontal", 4),
    Sketcher.Constraint("Horizontal", 7),
    Sketcher.Constraint("Horizontal", 10),
    Sketcher.Constraint("Horizontal", 13),
    Sketcher.Constraint("Horizontal", 16),
    Sketcher.Constraint("Horizontal", 19),
    Sketcher.Constraint("Horizontal", 22),
    Sketcher.Constraint("Symmetric", 9, 2, 12, 2, -1, 1),
    Sketcher.Constraint("Symmetric", 11, 2, 14, 2, -1, 1),
    Sketcher.Constraint("Symmetric", 6, 2, 15, 2, -1, 1),
    Sketcher.Constraint("Symmetric", 8, 2, 17, 2, -1, 1),
    Sketcher.Constraint("Symmetric", 3, 2, 18, 2, -1, 1),
    Sketcher.Constraint("Symmetric", 5, 2, 20, 2, -1, 1),
    Sketcher.Constraint("Symmetric", 0, 2, 21, 2, -1, 1),
    Sketcher.Constraint("Symmetric", 2, 2, 23, 2, -1, 1),
    Sketcher.Constraint("Symmetric", 1, 2, 12, 2, -2),
    Sketcher.Constraint("Symmetric", 5, 2, 14, 2, -2),
    Sketcher.Constraint("Symmetric", 4, 2, 15, 2, -2),
    Sketcher.Constraint("Symmetric", 2, 2, 17, 2, -2),
    Sketcher.Constraint("Parallel", 0, 3),
    Sketcher.Constraint("Parallel", 2, 5),
    Sketcher.Constraint("Parallel", 3, 6),
    Sketcher.Constraint("Parallel", 5, 8),
    Sketcher.Constraint("Parallel", 8, 11),
    Sketcher.Constraint("Parallel", 11, 14),
    Sketcher.Constraint("Parallel", 14, 17),
    Sketcher.Constraint("Parallel", 17, 20),
    Sketcher.Constraint("Parallel", 20, 23),
    Sketcher.Constraint("Horizontal", 2, 2, 5, 2),
    Sketcher.Constraint("Vertical", 1, 2, 3, 2),
    Sketcher.Constraint("DistanceY", 3, 2, 1, 2, Q("11 mm")),
    Sketcher.Constraint("Angle", 0, Q("120.0006 deg")),
    Sketcher.Constraint("DistanceY", 2, 2, -1, 1, Q("7 mm")),
    Sketcher.Constraint("DistanceX", 0, 2, 12, 2, Q("98 mm")),
    Sketcher.Constraint("DistanceX", 1, 2, 1, 1, Q("6.3508 mm")),
])
pocket11 = body.newObject("PartDesign::Pocket", "Pocket010")
pocket11.Profile = sketch15
pocket11.setExpression("Length", "Params.pocket11_length")

doc.recompute()
